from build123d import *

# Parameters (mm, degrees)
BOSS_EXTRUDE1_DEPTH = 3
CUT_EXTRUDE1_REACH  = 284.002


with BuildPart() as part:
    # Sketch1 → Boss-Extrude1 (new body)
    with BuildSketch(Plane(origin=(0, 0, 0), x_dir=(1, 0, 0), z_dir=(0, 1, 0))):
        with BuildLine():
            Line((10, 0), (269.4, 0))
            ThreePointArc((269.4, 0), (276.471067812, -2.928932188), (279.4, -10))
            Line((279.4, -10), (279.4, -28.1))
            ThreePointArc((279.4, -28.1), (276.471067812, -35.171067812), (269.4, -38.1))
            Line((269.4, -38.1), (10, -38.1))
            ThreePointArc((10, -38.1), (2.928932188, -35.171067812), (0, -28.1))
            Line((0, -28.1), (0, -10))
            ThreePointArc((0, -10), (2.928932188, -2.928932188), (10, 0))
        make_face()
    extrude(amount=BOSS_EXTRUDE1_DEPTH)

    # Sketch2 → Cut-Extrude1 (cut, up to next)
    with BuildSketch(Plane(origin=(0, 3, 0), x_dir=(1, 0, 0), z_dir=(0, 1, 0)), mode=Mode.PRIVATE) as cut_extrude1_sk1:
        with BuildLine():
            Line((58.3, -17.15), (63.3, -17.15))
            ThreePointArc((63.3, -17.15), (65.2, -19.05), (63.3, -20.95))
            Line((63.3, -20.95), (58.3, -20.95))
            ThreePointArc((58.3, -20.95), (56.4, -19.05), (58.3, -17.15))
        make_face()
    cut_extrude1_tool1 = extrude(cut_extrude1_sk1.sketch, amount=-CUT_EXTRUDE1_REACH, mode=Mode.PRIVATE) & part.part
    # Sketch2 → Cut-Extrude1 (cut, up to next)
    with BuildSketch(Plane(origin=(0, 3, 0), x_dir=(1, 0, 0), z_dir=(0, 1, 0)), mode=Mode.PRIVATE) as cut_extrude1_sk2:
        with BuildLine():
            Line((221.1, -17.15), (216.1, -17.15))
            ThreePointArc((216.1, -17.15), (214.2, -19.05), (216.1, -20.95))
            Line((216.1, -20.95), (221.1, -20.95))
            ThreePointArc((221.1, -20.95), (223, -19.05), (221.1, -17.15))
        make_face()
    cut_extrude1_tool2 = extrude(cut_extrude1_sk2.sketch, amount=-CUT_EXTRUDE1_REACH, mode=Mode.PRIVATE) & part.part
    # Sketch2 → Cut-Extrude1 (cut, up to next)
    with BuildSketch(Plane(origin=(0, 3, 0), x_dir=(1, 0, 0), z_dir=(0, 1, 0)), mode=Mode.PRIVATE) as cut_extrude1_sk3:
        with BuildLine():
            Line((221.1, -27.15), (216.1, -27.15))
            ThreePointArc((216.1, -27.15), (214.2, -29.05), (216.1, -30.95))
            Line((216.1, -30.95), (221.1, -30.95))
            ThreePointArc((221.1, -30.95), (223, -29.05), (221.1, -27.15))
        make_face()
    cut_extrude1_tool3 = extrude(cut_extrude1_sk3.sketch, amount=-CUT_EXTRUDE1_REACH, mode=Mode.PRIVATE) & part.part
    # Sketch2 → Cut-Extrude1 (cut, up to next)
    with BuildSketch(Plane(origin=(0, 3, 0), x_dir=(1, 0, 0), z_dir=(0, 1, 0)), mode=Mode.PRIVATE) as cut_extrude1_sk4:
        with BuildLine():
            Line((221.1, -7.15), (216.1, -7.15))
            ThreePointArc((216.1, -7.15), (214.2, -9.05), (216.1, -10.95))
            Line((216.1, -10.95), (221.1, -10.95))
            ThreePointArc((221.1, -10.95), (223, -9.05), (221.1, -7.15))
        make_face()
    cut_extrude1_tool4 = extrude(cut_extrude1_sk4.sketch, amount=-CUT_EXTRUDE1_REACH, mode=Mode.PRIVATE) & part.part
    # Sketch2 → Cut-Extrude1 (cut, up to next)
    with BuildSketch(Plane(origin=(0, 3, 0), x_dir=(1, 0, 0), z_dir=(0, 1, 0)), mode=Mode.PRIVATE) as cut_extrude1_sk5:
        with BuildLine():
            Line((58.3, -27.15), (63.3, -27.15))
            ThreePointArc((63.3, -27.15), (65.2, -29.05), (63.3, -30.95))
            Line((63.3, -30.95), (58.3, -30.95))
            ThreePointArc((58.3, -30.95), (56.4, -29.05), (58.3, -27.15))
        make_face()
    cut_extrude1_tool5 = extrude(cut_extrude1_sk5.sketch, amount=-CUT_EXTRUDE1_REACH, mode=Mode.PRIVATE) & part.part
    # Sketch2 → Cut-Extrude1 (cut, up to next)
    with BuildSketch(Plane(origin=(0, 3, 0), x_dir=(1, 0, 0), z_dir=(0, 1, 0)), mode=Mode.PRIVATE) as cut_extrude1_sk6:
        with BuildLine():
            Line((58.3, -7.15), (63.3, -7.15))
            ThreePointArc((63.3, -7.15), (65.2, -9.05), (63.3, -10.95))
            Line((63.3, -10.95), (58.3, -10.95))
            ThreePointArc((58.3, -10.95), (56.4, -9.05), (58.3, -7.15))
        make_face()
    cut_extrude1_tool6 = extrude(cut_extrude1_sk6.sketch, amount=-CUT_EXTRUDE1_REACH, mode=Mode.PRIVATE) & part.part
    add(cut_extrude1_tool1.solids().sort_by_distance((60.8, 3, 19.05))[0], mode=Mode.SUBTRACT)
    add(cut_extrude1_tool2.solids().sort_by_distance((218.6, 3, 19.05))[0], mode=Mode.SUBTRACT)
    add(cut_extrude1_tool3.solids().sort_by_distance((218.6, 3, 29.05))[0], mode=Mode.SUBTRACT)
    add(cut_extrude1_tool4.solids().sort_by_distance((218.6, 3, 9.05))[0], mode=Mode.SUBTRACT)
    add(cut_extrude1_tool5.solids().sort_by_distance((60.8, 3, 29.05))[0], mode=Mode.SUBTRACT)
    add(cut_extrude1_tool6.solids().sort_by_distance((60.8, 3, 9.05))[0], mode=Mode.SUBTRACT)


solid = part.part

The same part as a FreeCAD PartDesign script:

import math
import FreeCAD as App
import Part
import Sketcher
from FreeCAD import Vector

doc = App.newDocument("Part")
body = doc.addObject("PartDesign::Body", "Body")

sketch1 = body.newObject("Sketcher::SketchObject", "Sketch")
sketch1.AttachmentSupport = (doc.getObject("XZ_Plane"), [""])
sketch1.MapMode = "FlatFace"
sketch1.addGeometry([
    Part.LineSegment(Vector(269.4, 0, 0), Vector(10, 0, 0)),
    Part.ArcOfCircle(Part.Circle(Vector(10, 10, 0), Vector(0, 0, 1), 10), math.radians(180), math.radians(270)),
    Part.LineSegment(Vector(0, 10, 0), Vector(0, 28.1, 0)),
    Part.ArcOfCircle(Part.Circle(Vector(10, 28.1, 0), Vector(0, 0, 1), 10), math.radians(90), math.radians(180)),
    Part.LineSegment(Vector(10, 38.1, 0), Vector(269.4, 38.1, 0)),
    Part.ArcOfCircle(Part.Circle(Vector(269.4, 28.1, 0), Vector(0, 0, 1), 10), math.radians(0), math.radians(90)),
    Part.LineSegment(Vector(279.4, 28.1, 0), Vector(279.4, 10, 0)),
    Part.ArcOfCircle(Part.Circle(Vector(269.4, 10, 0), Vector(0, 0, 1), 10), math.radians(-90), math.radians(0)),
], False)
sketch1.addConstraint([
    Sketcher.Constraint("Tangent", 0, 2, 1, 2),
    Sketcher.Constraint("Tangent", 1, 1, 2, 1),
    Sketcher.Constraint("Tangent", 2, 2, 3, 2),
    Sketcher.Constraint("Tangent", 3, 1, 4, 1),
    Sketcher.Constraint("Tangent", 4, 2, 5, 2),
    Sketcher.Constraint("Tangent", 5, 1, 6, 1),
    Sketcher.Constraint("Tangent", 6, 2, 7, 2),
    Sketcher.Constraint("Tangent", 7, 1, 0, 1),
    Sketcher.Constraint("Horizontal", 0),
    Sketcher.Constraint("Vertical", 2),
    Sketcher.Constraint("Horizontal", 4),
    Sketcher.Constraint("Vertical", 6),
    Sketcher.Constraint("Equal", 1, 3),
    Sketcher.Constraint("Equal", 3, 5),
    Sketcher.Constraint("Equal", 5, 7),
    Sketcher.Constraint("PointOnObject", 0, 2, -1),
    Sketcher.Constraint("PointOnObject", 1, 1, -2),
    Sketcher.Constraint("Radius", 1, 10.0),
    Sketcher.Constraint("DistanceX", 0, 2, 0, 1, 259.4),
    Sketcher.Constraint("DistanceY", 2, 1, 2, 2, 18.1),
])
pad1 = body.newObject("PartDesign::Pad", "Pad")
pad1.Profile = sketch1
pad1.Length = 3
pad1.Reversed = True

sketch2 = body.newObject("Sketcher::SketchObject", "Sketch001")
sketch2.AttachmentSupport = (doc.getObject("XZ_Plane"), [""])
sketch2.MapMode = "FlatFace"
sketch2.AttachmentOffset = App.Placement(Vector(0, 0, -3), App.Rotation())
sketch2.addGeometry([
    Part.LineSegment(Vector(63.3, 17.15, 0), Vector(58.3, 17.15, 0)),
    Part.ArcOfCircle(Part.Circle(Vector(58.3, 19.05, 0), Vector(0, 0, 1), 1.9), math.radians(90), math.radians(270)),
    Part.LineSegment(Vector(58.3, 20.95, 0), Vector(63.3, 20.95, 0)),
    Part.ArcOfCircle(Part.Circle(Vector(63.3, 19.05, 0), Vector(0, 0, 1), 1.9), math.radians(-90), math.radians(90)),
], False)
sketch2.addConstraint([
    Sketcher.Constraint("Tangent", 0, 2, 1, 2),
    Sketcher.Constraint("Tangent", 1, 1, 2, 1),
    Sketcher.Constraint("Tangent", 2, 2, 3, 2),
    Sketcher.Constraint("Tangent", 3, 1, 0, 1),
    Sketcher.Constraint("Horizontal", 0),
    Sketcher.Constraint("Horizontal", 2),
    Sketcher.Constraint("Radius", 1, 1.9),
    Sketcher.Constraint("DistanceX", 0, 2, 0, 1, 5.0),
    Sketcher.Constraint("DistanceX", -1, 1, 1, 3, 58.3),
    Sketcher.Constraint("DistanceY", -1, 1, 1, 3, 19.05),
])
pocket1 = body.newObject("PartDesign::Pocket", "Pocket")
pocket1.Profile = sketch2
pocket1.Type = "UpToFirst"
pocket1.Reversed = True

sketch3 = body.newObject("Sketcher::SketchObject", "Sketch002")
sketch3.AttachmentSupport = (doc.getObject("XZ_Plane"), [""])
sketch3.MapMode = "FlatFace"
sketch3.AttachmentOffset = App.Placement(Vector(0, 0, -3), App.Rotation())
sketch3.addGeometry([
    Part.LineSegment(Vector(221.1, 17.15, 0), Vector(216.1, 17.15, 0)),
    Part.ArcOfCircle(Part.Circle(Vector(216.1, 19.05, 0), Vector(0, 0, 1), 1.9), math.radians(90), math.radians(270)),
    Part.LineSegment(Vector(216.1, 20.95, 0), Vector(221.1, 20.95, 0)),
    Part.ArcOfCircle(Part.Circle(Vector(221.1, 19.05, 0), Vector(0, 0, 1), 1.9), math.radians(-90), math.radians(90)),
], False)
sketch3.addConstraint([
    Sketcher.Constraint("Tangent", 0, 2, 1, 2),
    Sketcher.Constraint("Tangent", 1, 1, 2, 1),
    Sketcher.Constraint("Tangent", 2, 2, 3, 2),
    Sketcher.Constraint("Tangent", 3, 1, 0, 1),
    Sketcher.Constraint("Horizontal", 0),
    Sketcher.Constraint("Horizontal", 2),
    Sketcher.Constraint("Radius", 1, 1.9),
    Sketcher.Constraint("DistanceX", 0, 2, 0, 1, 5.0),
    Sketcher.Constraint("DistanceX", -1, 1, 1, 3, 216.1),
    Sketcher.Constraint("DistanceY", -1, 1, 1, 3, 19.05),
])
pocket2 = body.newObject("PartDesign::Pocket", "Pocket001")
pocket2.Profile = sketch3
pocket2.Type = "UpToFirst"
pocket2.Reversed = True

sketch4 = body.newObject("Sketcher::SketchObject", "Sketch003")
sketch4.AttachmentSupport = (doc.getObject("XZ_Plane"), [""])
sketch4.MapMode = "FlatFace"
sketch4.AttachmentOffset = App.Placement(Vector(0, 0, -3), App.Rotation())
sketch4.addGeometry([
    Part.LineSegment(Vector(221.1, 27.15, 0), Vector(216.1, 27.15, 0)),
    Part.ArcOfCircle(Part.Circle(Vector(216.1, 29.05, 0), Vector(0, 0, 1), 1.9), math.radians(90), math.radians(270)),
    Part.LineSegment(Vector(216.1, 30.95, 0), Vector(221.1, 30.95, 0)),
    Part.ArcOfCircle(Part.Circle(Vector(221.1, 29.05, 0), Vector(0, 0, 1), 1.9), math.radians(-90), math.radians(90)),
], False)
sketch4.addConstraint([
    Sketcher.Constraint("Tangent", 0, 2, 1, 2),
    Sketcher.Constraint("Tangent", 1, 1, 2, 1),
    Sketcher.Constraint("Tangent", 2, 2, 3, 2),
    Sketcher.Constraint("Tangent", 3, 1, 0, 1),
    Sketcher.Constraint("Horizontal", 0),
    Sketcher.Constraint("Horizontal", 2),
    Sketcher.Constraint("Radius", 1, 1.9),
    Sketcher.Constraint("DistanceX", 0, 2, 0, 1, 5.0),
    Sketcher.Constraint("DistanceX", -1, 1, 1, 3, 216.1),
    Sketcher.Constraint("DistanceY", -1, 1, 1, 3, 29.05),
])
pocket3 = body.newObject("PartDesign::Pocket", "Pocket002")
pocket3.Profile = sketch4
pocket3.Type = "UpToFirst"
pocket3.Reversed = True

sketch5 = body.newObject("Sketcher::SketchObject", "Sketch004")
sketch5.AttachmentSupport = (doc.getObject("XZ_Plane"), [""])
sketch5.MapMode = "FlatFace"
sketch5.AttachmentOffset = App.Placement(Vector(0, 0, -3), App.Rotation())
sketch5.addGeometry([
    Part.LineSegment(Vector(221.1, 7.15, 0), Vector(216.1, 7.15, 0)),
    Part.ArcOfCircle(Part.Circle(Vector(216.1, 9.05, 0), Vector(0, 0, 1), 1.9), math.radians(90), math.radians(270)),
    Part.LineSegment(Vector(216.1, 10.95, 0), Vector(221.1, 10.95, 0)),
    Part.ArcOfCircle(Part.Circle(Vector(221.1, 9.05, 0), Vector(0, 0, 1), 1.9), math.radians(-90), math.radians(90)),
], False)
sketch5.addConstraint([
    Sketcher.Constraint("Tangent", 0, 2, 1, 2),
    Sketcher.Constraint("Tangent", 1, 1, 2, 1),
    Sketcher.Constraint("Tangent", 2, 2, 3, 2),
    Sketcher.Constraint("Tangent", 3, 1, 0, 1),
    Sketcher.Constraint("Horizontal", 0),
    Sketcher.Constraint("Horizontal", 2),
    Sketcher.Constraint("Radius", 1, 1.9),
    Sketcher.Constraint("DistanceX", 0, 2, 0, 1, 5.0),
    Sketcher.Constraint("DistanceX", -1, 1, 1, 3, 216.1),
    Sketcher.Constraint("DistanceY", -1, 1, 1, 3, 9.05),
])
pocket4 = body.newObject("PartDesign::Pocket", "Pocket003")
pocket4.Profile = sketch5
pocket4.Type = "UpToFirst"
pocket4.Reversed = True

sketch6 = body.newObject("Sketcher::SketchObject", "Sketch005")
sketch6.AttachmentSupport = (doc.getObject("XZ_Plane"), [""])
sketch6.MapMode = "FlatFace"
sketch6.AttachmentOffset = App.Placement(Vector(0, 0, -3), App.Rotation())
sketch6.addGeometry([
    Part.LineSegment(Vector(63.3, 27.15, 0), Vector(58.3, 27.15, 0)),
    Part.ArcOfCircle(Part.Circle(Vector(58.3, 29.05, 0), Vector(0, 0, 1), 1.9), math.radians(90), math.radians(270)),
    Part.LineSegment(Vector(58.3, 30.95, 0), Vector(63.3, 30.95, 0)),
    Part.ArcOfCircle(Part.Circle(Vector(63.3, 29.05, 0), Vector(0, 0, 1), 1.9), math.radians(-90), math.radians(90)),
], False)
sketch6.addConstraint([
    Sketcher.Constraint("Tangent", 0, 2, 1, 2),
    Sketcher.Constraint("Tangent", 1, 1, 2, 1),
    Sketcher.Constraint("Tangent", 2, 2, 3, 2),
    Sketcher.Constraint("Tangent", 3, 1, 0, 1),
    Sketcher.Constraint("Horizontal", 0),
    Sketcher.Constraint("Horizontal", 2),
    Sketcher.Constraint("Radius", 1, 1.9),
    Sketcher.Constraint("DistanceX", 0, 2, 0, 1, 5.0),
    Sketcher.Constraint("DistanceX", -1, 1, 1, 3, 58.3),
    Sketcher.Constraint("DistanceY", -1, 1, 1, 3, 29.05),
])
pocket5 = body.newObject("PartDesign::Pocket", "Pocket004")
pocket5.Profile = sketch6
pocket5.Type = "UpToFirst"
pocket5.Reversed = True

sketch7 = body.newObject("Sketcher::SketchObject", "Sketch006")
sketch7.AttachmentSupport = (doc.getObject("XZ_Plane"), [""])
sketch7.MapMode = "FlatFace"
sketch7.AttachmentOffset = App.Placement(Vector(0, 0, -3), App.Rotation())
sketch7.addGeometry([
    Part.LineSegment(Vector(63.3, 7.15, 0), Vector(58.3, 7.15, 0)),
    Part.ArcOfCircle(Part.Circle(Vector(58.3, 9.05, 0), Vector(0, 0, 1), 1.9), math.radians(90), math.radians(270)),
    Part.LineSegment(Vector(58.3, 10.95, 0), Vector(63.3, 10.95, 0)),
    Part.ArcOfCircle(Part.Circle(Vector(63.3, 9.05, 0), Vector(0, 0, 1), 1.9), math.radians(-90), math.radians(90)),
], False)
sketch7.addConstraint([
    Sketcher.Constraint("Tangent", 0, 2, 1, 2),
    Sketcher.Constraint("Tangent", 1, 1, 2, 1),
    Sketcher.Constraint("Tangent", 2, 2, 3, 2),
    Sketcher.Constraint("Tangent", 3, 1, 0, 1),
    Sketcher.Constraint("Horizontal", 0),
    Sketcher.Constraint("Horizontal", 2),
    Sketcher.Constraint("Radius", 1, 1.9),
    Sketcher.Constraint("DistanceX", 0, 2, 0, 1, 5.0),
    Sketcher.Constraint("DistanceX", -1, 1, 1, 3, 58.3),
    Sketcher.Constraint("DistanceY", -1, 1, 1, 3, 9.05),
])
pocket6 = body.newObject("PartDesign::Pocket", "Pocket005")
pocket6.Profile = sketch7
pocket6.Type = "UpToFirst"
pocket6.Reversed = True

doc.recompute()
